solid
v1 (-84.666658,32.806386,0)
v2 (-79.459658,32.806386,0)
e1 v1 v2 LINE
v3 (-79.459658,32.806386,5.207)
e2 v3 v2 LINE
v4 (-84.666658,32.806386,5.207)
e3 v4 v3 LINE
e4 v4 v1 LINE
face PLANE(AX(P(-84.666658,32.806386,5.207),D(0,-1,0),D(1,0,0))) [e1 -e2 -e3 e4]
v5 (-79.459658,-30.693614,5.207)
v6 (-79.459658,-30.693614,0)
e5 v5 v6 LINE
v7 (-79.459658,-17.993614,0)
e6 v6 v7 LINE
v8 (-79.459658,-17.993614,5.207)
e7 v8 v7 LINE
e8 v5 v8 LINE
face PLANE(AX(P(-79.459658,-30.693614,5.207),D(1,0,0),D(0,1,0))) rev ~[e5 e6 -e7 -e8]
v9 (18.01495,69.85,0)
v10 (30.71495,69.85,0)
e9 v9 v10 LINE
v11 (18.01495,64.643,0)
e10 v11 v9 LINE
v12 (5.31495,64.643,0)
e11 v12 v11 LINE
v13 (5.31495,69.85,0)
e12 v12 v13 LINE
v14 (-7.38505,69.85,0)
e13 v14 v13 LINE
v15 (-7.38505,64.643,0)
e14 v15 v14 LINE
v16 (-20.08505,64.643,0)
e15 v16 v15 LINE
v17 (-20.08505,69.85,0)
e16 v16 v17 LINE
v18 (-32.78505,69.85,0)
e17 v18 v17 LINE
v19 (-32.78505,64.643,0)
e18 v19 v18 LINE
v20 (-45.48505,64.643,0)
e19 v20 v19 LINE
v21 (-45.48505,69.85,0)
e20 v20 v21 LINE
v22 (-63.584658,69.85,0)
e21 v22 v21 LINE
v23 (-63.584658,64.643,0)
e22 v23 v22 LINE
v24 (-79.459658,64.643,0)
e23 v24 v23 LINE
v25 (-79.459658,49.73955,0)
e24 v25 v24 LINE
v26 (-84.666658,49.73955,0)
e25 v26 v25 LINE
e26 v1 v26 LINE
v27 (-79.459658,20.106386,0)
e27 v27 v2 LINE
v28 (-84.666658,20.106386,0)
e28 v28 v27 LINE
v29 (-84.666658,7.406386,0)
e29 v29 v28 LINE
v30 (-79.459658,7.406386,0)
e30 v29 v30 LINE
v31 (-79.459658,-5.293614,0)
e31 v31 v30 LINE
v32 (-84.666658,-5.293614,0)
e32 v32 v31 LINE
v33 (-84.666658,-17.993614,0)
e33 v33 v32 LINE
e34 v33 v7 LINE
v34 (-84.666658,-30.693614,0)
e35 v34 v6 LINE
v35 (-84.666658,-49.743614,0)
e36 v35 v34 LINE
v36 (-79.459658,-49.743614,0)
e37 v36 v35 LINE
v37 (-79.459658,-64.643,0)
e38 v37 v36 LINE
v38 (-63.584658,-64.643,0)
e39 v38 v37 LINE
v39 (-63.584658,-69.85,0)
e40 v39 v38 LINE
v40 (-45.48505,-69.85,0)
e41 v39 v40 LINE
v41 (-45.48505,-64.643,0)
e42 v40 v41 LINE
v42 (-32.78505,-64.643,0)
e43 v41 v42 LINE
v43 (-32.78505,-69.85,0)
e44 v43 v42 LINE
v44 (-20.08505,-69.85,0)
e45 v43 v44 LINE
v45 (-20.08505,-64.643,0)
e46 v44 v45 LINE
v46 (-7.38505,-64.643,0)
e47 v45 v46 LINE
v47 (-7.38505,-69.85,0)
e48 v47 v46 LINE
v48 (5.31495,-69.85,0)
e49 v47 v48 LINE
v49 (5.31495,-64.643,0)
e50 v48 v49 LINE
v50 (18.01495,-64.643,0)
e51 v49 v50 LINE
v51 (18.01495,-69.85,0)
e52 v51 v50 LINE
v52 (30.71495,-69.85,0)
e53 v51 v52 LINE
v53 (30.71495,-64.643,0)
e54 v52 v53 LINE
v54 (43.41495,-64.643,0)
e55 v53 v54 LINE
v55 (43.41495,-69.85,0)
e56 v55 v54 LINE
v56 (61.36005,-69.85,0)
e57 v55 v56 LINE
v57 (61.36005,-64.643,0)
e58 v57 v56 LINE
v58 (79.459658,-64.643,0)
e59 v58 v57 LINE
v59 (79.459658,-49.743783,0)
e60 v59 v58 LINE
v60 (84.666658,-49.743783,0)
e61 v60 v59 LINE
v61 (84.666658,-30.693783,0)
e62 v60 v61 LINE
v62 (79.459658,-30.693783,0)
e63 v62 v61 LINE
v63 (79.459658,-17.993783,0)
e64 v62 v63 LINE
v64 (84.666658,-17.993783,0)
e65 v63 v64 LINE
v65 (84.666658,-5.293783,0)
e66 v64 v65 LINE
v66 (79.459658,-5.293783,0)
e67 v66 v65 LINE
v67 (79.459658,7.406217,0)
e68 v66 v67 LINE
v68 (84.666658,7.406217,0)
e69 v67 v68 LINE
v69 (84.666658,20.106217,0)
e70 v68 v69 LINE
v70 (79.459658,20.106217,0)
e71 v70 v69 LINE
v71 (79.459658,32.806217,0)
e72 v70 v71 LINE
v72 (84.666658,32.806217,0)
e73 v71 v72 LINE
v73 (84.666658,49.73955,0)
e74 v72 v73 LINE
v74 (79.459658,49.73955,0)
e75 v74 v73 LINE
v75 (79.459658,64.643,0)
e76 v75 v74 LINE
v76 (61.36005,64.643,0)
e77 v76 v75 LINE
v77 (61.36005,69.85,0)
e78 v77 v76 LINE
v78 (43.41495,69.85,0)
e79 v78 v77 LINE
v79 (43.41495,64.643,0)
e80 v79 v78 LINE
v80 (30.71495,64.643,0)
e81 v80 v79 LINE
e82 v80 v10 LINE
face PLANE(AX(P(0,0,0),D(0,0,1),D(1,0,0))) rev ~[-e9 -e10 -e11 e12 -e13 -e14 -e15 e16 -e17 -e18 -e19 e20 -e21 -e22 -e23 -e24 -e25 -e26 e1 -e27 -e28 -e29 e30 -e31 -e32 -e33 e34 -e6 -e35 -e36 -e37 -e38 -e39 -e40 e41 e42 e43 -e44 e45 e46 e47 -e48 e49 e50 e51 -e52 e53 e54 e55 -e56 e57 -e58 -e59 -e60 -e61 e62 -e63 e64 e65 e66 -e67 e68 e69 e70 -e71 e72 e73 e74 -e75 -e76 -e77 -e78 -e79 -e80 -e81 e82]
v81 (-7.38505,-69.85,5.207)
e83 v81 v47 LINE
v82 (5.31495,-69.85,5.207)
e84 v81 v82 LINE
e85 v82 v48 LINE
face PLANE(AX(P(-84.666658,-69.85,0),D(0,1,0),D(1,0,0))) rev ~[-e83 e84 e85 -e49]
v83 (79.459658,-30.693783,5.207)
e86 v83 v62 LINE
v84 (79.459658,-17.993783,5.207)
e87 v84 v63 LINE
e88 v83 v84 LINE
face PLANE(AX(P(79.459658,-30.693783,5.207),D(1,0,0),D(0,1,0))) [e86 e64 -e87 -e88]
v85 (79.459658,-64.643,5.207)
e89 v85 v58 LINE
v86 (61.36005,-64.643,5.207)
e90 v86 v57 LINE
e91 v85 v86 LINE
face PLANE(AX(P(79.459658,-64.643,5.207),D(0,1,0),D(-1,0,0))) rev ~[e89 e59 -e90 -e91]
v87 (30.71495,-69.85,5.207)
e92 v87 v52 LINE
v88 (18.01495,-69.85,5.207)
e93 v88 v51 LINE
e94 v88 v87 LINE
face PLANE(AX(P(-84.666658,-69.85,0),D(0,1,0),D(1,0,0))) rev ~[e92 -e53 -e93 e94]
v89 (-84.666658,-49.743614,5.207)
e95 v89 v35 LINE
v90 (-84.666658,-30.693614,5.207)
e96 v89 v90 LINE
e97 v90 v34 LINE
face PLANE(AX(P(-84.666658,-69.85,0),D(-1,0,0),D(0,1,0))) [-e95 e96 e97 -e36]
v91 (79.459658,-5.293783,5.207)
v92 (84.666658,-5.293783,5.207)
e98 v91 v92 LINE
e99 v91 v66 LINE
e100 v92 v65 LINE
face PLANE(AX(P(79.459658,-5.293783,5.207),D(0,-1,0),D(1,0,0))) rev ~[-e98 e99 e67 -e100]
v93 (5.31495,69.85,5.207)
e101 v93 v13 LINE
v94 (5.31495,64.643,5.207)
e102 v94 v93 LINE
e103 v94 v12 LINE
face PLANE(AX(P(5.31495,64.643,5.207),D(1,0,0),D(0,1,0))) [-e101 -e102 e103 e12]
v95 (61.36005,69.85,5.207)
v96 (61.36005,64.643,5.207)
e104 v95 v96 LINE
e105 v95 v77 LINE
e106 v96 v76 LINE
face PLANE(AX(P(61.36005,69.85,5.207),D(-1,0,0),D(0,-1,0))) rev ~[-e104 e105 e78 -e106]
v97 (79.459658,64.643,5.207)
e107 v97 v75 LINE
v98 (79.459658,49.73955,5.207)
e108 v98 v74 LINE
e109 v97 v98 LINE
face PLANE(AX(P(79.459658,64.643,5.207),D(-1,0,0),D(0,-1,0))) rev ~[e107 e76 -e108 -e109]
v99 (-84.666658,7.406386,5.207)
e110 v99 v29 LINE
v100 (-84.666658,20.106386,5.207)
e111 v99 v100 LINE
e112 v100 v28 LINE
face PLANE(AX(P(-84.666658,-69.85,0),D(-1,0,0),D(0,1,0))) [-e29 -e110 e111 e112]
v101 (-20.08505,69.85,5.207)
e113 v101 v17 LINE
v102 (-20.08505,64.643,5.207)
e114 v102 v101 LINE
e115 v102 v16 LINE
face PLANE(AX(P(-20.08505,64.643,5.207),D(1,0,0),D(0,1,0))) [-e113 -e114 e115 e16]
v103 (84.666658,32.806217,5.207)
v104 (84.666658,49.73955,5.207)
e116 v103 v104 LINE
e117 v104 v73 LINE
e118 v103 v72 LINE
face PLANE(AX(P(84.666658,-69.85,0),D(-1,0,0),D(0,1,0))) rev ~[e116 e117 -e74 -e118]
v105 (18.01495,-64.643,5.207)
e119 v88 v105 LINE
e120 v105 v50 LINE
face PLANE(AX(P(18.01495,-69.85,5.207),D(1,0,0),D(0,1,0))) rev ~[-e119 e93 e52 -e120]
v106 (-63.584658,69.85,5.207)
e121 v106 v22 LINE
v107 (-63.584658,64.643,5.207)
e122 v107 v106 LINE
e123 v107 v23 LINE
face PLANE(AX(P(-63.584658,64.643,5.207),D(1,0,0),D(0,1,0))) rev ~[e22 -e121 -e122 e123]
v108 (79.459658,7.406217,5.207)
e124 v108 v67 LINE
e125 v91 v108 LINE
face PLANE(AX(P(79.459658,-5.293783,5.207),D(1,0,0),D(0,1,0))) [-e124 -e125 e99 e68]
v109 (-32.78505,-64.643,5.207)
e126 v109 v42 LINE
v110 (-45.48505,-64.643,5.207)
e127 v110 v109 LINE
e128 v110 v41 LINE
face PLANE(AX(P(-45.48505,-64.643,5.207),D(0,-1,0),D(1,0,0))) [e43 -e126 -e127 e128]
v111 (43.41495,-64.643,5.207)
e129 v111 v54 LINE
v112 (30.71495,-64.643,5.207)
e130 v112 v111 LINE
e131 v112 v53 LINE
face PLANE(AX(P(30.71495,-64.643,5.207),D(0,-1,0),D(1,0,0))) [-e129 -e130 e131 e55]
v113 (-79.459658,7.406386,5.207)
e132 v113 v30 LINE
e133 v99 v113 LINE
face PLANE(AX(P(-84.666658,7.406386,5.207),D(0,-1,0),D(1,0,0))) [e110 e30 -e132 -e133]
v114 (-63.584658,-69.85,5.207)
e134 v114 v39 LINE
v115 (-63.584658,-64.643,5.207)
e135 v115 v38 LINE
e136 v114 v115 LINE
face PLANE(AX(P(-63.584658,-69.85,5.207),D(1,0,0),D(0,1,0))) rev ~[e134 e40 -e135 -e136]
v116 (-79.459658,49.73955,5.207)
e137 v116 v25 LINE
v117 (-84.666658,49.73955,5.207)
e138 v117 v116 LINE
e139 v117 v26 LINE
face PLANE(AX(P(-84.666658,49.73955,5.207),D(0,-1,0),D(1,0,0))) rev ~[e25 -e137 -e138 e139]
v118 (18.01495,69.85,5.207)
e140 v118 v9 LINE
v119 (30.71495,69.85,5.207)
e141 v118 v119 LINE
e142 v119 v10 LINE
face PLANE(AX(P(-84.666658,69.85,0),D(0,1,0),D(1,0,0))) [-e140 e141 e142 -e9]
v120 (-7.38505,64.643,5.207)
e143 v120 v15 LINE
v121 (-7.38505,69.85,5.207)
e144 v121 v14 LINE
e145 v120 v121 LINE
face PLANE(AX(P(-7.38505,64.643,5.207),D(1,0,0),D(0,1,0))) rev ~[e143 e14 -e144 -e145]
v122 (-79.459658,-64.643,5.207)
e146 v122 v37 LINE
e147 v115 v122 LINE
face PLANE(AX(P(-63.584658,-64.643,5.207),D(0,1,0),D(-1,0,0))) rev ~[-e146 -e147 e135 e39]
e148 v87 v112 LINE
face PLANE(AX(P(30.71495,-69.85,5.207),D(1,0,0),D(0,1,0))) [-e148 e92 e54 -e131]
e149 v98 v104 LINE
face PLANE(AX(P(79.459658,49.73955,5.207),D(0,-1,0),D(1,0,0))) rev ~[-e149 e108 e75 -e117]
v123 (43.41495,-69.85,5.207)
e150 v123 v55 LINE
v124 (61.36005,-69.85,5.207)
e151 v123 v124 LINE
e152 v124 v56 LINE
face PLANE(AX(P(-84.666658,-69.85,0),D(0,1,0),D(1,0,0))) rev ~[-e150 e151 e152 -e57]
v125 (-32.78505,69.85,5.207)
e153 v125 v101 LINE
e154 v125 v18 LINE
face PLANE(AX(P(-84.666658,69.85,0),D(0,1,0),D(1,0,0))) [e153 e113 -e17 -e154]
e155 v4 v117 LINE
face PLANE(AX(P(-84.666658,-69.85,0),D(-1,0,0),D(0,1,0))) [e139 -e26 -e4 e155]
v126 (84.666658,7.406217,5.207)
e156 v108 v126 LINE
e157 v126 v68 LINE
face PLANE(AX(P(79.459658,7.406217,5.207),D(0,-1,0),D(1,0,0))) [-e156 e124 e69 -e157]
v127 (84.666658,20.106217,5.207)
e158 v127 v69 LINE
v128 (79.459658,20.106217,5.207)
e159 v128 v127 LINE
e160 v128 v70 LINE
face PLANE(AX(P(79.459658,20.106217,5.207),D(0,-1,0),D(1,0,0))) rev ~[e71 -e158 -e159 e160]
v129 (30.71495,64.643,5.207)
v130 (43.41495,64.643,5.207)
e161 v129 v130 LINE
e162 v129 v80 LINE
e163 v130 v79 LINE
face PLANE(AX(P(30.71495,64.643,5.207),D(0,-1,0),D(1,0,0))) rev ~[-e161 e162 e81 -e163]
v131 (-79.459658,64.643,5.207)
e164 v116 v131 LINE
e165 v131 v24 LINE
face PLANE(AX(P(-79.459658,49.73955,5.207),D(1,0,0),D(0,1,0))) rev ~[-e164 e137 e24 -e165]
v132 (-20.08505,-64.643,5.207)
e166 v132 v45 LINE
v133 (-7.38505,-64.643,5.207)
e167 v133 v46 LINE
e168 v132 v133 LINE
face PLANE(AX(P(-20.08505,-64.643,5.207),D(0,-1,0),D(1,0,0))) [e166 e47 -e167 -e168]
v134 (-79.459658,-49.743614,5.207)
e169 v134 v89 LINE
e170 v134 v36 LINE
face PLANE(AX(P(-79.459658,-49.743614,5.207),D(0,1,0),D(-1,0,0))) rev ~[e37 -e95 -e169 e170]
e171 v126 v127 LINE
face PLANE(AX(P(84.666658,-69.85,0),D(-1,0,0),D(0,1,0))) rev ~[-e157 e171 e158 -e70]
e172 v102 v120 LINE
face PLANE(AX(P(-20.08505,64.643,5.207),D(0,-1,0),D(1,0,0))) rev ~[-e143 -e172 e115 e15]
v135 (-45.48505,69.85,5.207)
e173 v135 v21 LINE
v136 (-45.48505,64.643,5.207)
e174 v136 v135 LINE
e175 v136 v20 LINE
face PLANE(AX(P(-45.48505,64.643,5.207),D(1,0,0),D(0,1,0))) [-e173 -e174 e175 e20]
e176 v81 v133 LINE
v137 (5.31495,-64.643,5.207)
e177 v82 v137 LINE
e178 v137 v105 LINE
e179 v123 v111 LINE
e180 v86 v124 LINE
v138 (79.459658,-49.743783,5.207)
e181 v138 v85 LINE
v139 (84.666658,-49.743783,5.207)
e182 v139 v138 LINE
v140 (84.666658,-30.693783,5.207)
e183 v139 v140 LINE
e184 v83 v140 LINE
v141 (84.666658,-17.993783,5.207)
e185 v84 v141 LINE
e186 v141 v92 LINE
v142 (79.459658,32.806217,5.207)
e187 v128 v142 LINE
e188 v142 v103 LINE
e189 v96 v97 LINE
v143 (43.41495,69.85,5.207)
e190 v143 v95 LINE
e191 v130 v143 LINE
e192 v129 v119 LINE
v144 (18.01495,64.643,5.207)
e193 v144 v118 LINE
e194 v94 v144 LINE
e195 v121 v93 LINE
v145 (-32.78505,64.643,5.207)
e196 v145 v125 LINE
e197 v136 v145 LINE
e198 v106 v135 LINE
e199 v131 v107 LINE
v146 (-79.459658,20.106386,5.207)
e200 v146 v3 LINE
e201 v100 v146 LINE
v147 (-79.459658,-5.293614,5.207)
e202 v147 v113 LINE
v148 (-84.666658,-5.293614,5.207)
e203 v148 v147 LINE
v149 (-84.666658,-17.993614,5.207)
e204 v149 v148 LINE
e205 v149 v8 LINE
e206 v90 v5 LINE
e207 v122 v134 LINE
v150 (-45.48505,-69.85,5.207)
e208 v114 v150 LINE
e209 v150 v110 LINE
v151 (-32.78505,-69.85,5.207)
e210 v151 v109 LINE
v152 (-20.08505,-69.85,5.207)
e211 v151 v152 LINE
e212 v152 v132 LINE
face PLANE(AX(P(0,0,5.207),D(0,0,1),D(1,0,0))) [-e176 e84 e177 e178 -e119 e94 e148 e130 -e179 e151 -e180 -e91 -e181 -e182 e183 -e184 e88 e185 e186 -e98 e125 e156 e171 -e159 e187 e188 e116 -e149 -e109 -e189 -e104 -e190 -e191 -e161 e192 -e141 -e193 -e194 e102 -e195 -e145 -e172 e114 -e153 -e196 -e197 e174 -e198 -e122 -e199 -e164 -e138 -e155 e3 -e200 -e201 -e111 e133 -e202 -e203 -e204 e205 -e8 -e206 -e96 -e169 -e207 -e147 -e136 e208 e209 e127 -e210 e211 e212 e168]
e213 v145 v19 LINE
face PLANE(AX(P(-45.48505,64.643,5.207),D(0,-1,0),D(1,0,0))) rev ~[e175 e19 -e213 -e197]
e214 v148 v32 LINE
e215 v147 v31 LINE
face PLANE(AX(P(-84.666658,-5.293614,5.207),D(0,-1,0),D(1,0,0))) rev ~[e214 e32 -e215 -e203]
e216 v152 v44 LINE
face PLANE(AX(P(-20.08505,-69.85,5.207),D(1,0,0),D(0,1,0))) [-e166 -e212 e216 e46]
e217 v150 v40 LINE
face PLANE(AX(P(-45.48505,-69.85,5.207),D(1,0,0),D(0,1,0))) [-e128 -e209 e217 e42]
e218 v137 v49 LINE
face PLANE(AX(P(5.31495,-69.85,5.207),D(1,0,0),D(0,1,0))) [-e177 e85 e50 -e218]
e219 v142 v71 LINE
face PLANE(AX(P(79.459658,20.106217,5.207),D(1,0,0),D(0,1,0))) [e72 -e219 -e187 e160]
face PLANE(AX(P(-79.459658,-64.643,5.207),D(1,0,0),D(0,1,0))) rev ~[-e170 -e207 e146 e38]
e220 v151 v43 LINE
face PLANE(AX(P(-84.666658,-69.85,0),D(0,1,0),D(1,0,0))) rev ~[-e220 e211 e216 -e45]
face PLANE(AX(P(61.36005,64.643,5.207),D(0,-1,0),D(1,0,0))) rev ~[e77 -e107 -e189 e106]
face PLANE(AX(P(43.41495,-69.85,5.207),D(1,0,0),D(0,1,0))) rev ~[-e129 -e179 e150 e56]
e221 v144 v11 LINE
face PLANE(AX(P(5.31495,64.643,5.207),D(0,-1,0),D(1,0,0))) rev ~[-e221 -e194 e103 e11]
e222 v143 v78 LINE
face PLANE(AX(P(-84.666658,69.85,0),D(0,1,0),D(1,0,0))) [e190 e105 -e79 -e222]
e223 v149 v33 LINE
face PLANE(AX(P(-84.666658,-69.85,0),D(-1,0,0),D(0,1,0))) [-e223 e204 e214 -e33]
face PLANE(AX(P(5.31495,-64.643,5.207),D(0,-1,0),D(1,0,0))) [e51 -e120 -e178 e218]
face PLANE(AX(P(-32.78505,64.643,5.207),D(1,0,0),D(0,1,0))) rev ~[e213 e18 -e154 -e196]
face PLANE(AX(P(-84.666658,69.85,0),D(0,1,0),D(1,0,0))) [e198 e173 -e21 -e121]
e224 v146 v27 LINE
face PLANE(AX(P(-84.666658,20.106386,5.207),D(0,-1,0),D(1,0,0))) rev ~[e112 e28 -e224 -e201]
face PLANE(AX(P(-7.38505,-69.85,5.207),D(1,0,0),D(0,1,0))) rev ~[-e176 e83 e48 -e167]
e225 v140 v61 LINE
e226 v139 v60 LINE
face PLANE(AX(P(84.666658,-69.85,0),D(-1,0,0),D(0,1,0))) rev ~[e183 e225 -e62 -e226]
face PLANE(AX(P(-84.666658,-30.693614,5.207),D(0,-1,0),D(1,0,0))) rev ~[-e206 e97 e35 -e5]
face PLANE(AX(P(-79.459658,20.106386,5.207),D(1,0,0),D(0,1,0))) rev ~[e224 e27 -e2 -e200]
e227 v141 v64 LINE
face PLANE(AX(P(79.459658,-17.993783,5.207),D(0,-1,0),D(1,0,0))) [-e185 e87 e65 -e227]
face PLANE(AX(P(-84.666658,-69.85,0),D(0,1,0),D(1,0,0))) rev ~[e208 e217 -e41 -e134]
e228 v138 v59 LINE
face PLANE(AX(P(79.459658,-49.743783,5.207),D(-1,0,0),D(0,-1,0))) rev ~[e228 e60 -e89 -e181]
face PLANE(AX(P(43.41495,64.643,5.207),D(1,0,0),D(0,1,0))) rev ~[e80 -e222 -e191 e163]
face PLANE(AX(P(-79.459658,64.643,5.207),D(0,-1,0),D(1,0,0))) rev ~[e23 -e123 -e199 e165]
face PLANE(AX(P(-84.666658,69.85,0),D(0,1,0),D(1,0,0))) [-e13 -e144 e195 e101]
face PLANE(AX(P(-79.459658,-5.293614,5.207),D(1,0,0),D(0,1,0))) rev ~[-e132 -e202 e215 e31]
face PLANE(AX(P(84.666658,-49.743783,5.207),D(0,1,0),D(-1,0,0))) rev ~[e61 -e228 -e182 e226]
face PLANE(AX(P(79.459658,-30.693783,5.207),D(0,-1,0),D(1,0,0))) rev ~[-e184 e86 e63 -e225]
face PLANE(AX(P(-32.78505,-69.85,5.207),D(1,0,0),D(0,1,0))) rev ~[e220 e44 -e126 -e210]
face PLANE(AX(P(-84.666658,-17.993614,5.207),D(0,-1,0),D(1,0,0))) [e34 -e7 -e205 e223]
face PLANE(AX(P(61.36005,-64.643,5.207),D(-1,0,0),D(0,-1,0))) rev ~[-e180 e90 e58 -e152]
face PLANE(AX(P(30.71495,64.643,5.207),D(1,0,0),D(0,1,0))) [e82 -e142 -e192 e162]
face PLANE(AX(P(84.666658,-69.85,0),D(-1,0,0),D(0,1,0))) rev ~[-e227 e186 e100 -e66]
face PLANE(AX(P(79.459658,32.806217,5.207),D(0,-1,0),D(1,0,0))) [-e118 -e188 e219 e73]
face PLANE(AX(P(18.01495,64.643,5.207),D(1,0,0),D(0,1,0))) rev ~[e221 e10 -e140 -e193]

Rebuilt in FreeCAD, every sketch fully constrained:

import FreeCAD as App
import Part
import Sketcher
from FreeCAD import Vector
Q = App.Units.Quantity

doc = App.newDocument("Part")
body = doc.addObject("PartDesign::Body", "Body")

# Sketch on XY plane
sketch1 = doc.addObject("Sketcher::SketchObject", "Sketch")
body.addObject(sketch1)
sketch1.AttachmentSupport = (doc.XY_Plane, [""])
sketch1.MapMode = "FlatFace"
sketch1.addGeometry(Part.LineSegment(Vector(-84.666658, 69.85, 0), Vector(-84.666658, -69.85, 0)), False)
sketch1.addGeometry(Part.LineSegment(Vector(-84.666658, -69.85, 0), Vector(84.666658, -69.85, 0)), False)
sketch1.addGeometry(Part.LineSegment(Vector(84.666658, -69.85, 0), Vector(84.666658, 69.85, 0)), False)
sketch1.addGeometry(Part.LineSegment(Vector(84.666658, 69.85, 0), Vector(-84.666658, 69.85, 0)), False)
sketch1.addConstraint(Sketcher.Constraint("Coincident", 0, 2, 1, 1))
sketch1.addConstraint(Sketcher.Constraint("Coincident", 1, 2, 2, 1))
sketch1.addConstraint(Sketcher.Constraint("Coincident", 2, 2, 3, 1))
sketch1.addConstraint(Sketcher.Constraint("Coincident", 3, 2, 0, 1))
sketch1.addConstraint(Sketcher.Constraint("Vertical", 0))
sketch1.addConstraint(Sketcher.Constraint("Horizontal", 1))
sketch1.addConstraint(Sketcher.Constraint("Vertical", 2))
sketch1.addConstraint(Sketcher.Constraint("Horizontal", 3))
sketch1.addConstraint(Sketcher.Constraint("Symmetric", 0, 2, 2, 2, -1, 1))
sketch1.addConstraint(Sketcher.Constraint("DistanceY", 0, 2, 0, 1, Q("5.5 in")))
sketch1.addConstraint(Sketcher.Constraint("DistanceX", 1, 1, 1, 2, 169.333316))
pad1 = doc.addObject("PartDesign::Pad", "Pad")
body.addObject(pad1)
pad1.Profile = sketch1
pad1.Length = Q("0.205 in")

# Sketch on XY plane
sketch2 = doc.addObject("Sketcher::SketchObject", "Sketch001")
body.addObject(sketch2)
sketch2.AttachmentSupport = (doc.XY_Plane, [""])
sketch2.MapMode = "FlatFace"
sketch2.AttachmentOffset = App.Placement(Vector(0, 0, 0.205 * 25.4), App.Rotation())
sketch2.addGeometry(Part.LineSegment(Vector(-79.459658, 49.73955, 0), Vector(-79.459658, 64.643, 0)), False)
sketch2.addGeometry(Part.LineSegment(Vector(-79.459658, 64.643, 0), Vector(-63.584658, 64.643, 0)), False)
sketch2.addGeometry(Part.LineSegment(Vector(-63.584658, 64.643, 0), Vector(-63.584658, 69.85, 0)), False)
sketch2.addGeometry(Part.LineSegment(Vector(-63.584658, 69.85, 0), Vector(-84.666658, 69.85, 0)), False)
sketch2.addGeometry(Part.LineSegment(Vector(-84.666658, 69.85, 0), Vector(-84.666658, 49.73955, 0)), False)
sketch2.addGeometry(Part.LineSegment(Vector(-84.666658, 49.73955, 0), Vector(-79.459658, 49.73955, 0)), False)
sketch2.addGeometry(Part.LineSegment(Vector(-84.666658, 32.806386, 0), Vector(-84.666658, 20.106386, 0)), False)
sketch2.addGeometry(Part.LineSegment(Vector(-84.666658, 20.106386, 0), Vector(-79.459658, 20.106386, 0)), False)
sketch2.addGeometry(Part.LineSegment(Vector(-79.459658, 20.106386, 0), Vector(-79.459658, 32.806386, 0)), False)
sketch2.addGeometry(Part.LineSegment(Vector(-79.459658, 32.806386, 0), Vector(-84.666658, 32.806386, 0)), False)
sketch2.addGeometry(Part.LineSegment(Vector(-84.666658, 7.406386, 0), Vector(-84.666658, -5.293614, 0)), False)
sketch2.addGeometry(Part.LineSegment(Vector(-84.666658, -5.293614, 0), Vector(-79.459658, -5.293614, 0)), False)
sketch2.addGeometry(Part.LineSegment(Vector(-79.459658, -5.293614, 0), Vector(-79.459658, 7.406386, 0)), False)
sketch2.addGeometry(Part.LineSegment(Vector(-79.459658, 7.406386, 0), Vector(-84.666658, 7.406386, 0)), False)
sketch2.addGeometry(Part.LineSegment(Vector(-84.666658, -17.993614, 0), Vector(-84.666658, -30.693614, 0)), False)
sketch2.addGeometry(Part.LineSegment(Vector(-84.666658, -30.693614, 0), Vector(-79.459658, -30.693614, 0)), False)
sketch2.addGeometry(Part.LineSegment(Vector(-79.459658, -30.693614, 0), Vector(-79.459658, -17.993614, 0)), False)
sketch2.addGeometry(Part.LineSegment(Vector(-79.459658, -17.993614, 0), Vector(-84.666658, -17.993614, 0)), False)
sketch2.addGeometry(Part.LineSegment(Vector(-79.459658, -49.743614, 0), Vector(-84.666658, -49.743614, 0)), False)
sketch2.addGeometry(Part.LineSegment(Vector(-84.666658, -49.743614, 0), Vector(-84.666658, -69.85, 0)), False)
sketch2.addGeometry(Part.LineSegment(Vector(-84.666658, -69.85, 0), Vector(-63.584658, -69.85, 0)), False)
sketch2.addGeometry(Part.LineSegment(Vector(-63.584658, -69.85, 0), Vector(-63.584658, -64.643, 0)), False)
sketch2.addGeometry(Part.LineSegment(Vector(-63.584658, -64.643, 0), Vector(-79.459658, -64.643, 0)), False)
sketch2.addGeometry(Part.LineSegment(Vector(-79.459658, -64.643, 0), Vector(-79.459658, -49.743614, 0)), False)
sketch2.addGeometry(Part.LineSegment(Vector(-45.48505, -64.643, 0), Vector(-45.48505, -69.85, 0)), False)
sketch2.addGeometry(Part.LineSegment(Vector(-45.48505, -69.85, 0), Vector(-32.78505, -69.85, 0)), False)
sketch2.addGeometry(Part.LineSegment(Vector(-32.78505, -69.85, 0), Vector(-32.78505, -64.643, 0)), False)
sketch2.addGeometry(Part.LineSegment(Vector(-32.78505, -64.643, 0), Vector(-45.48505, -64.643, 0)), False)
sketch2.addGeometry(Part.LineSegment(Vector(-20.08505, -64.643, 0), Vector(-20.08505, -69.85, 0)), False)
sketch2.addGeometry(Part.LineSegment(Vector(-20.08505, -69.85, 0), Vector(-7.38505, -69.85, 0)), False)
sketch2.addGeometry(Part.LineSegment(Vector(-7.38505, -69.85, 0), Vector(-7.38505, -64.643, 0)), False)
sketch2.addGeometry(Part.LineSegment(Vector(-7.38505, -64.643, 0), Vector(-20.08505, -64.643, 0)), False)
sketch2.addGeometry(Part.LineSegment(Vector(5.31495, -64.643, 0), Vector(5.31495, -69.85, 0)), False)
sketch2.addGeometry(Part.LineSegment(Vector(5.31495, -69.85, 0), Vector(18.01495, -69.85, 0)), False)
sketch2.addGeometry(Part.LineSegment(Vector(18.01495, -69.85, 0), Vector(18.01495, -64.643, 0)), False)
sketch2.addGeometry(Part.LineSegment(Vector(18.01495, -64.643, 0), Vector(5.31495, -64.643, 0)), False)
sketch2.addGeometry(Part.LineSegment(Vector(30.71495, -64.643, 0), Vector(30.71495, -69.85, 0)), False)
sketch2.addGeometry(Part.LineSegment(Vector(30.71495, -69.85, 0), Vector(43.41495, -69.85, 0)), False)
sketch2.addGeometry(Part.LineSegment(Vector(43.41495, -69.85, 0), Vector(43.41495, -64.643, 0)), False)
sketch2.addGeometry(Part.LineSegment(Vector(43.41495, -64.643, 0), Vector(30.71495, -64.643, 0)), False)
sketch2.addGeometry(Part.LineSegment(Vector(61.36005, -64.643, 0), Vector(61.36005, -69.85, 0)), False)
sketch2.addGeometry(Part.LineSegment(Vector(61.36005, -69.85, 0), Vector(84.666658, -69.85, 0)), False)
sketch2.addGeometry(Part.LineSegment(Vector(84.666658, -69.85, 0), Vector(84.666658, -49.743783, 0)), False)
sketch2.addGeometry(Part.LineSegment(Vector(84.666658, -49.743783, 0), Vector(79.459658, -49.743783, 0)), False)
sketch2.addGeometry(Part.LineSegment(Vector(79.459658, -49.743783, 0), Vector(79.459658, -64.643, 0)), False)
sketch2.addGeometry(Part.LineSegment(Vector(79.459658, -64.643, 0), Vector(61.36005, -64.643, 0)), False)
sketch2.addGeometry(Part.LineSegment(Vector(79.459658, -17.993783, 0), Vector(79.459658, -30.693783, 0)), False)
sketch2.addGeometry(Part.LineSegment(Vector(79.459658, -30.693783, 0), Vector(84.666658, -30.693783, 0)), False)
sketch2.addGeometry(Part.LineSegment(Vector(84.666658, -30.693783, 0), Vector(84.666658, -17.993783, 0)), False)
sketch2.addGeometry(Part.LineSegment(Vector(84.666658, -17.993783, 0), Vector(79.459658, -17.993783, 0)), False)
sketch2.addGeometry(Part.LineSegment(Vector(79.459658, 7.406217, 0), Vector(79.459658, -5.293783, 0)), False)
sketch2.addGeometry(Part.LineSegment(Vector(79.459658, -5.293783, 0), Vector(84.666658, -5.293783, 0)), False)
sketch2.addGeometry(Part.LineSegment(Vector(84.666658, -5.293783, 0), Vector(84.666658, 7.406217, 0)), False)
sketch2.addGeometry(Part.LineSegment(Vector(84.666658, 7.406217, 0), Vector(79.459658, 7.406217, 0)), False)
sketch2.addGeometry(Part.LineSegment(Vector(84.666658, 69.85, 0), Vector(61.36005, 69.85, 0)), False)
sketch2.addGeometry(Part.LineSegment(Vector(61.36005, 69.85, 0), Vector(61.36005, 64.643, 0)), False)
sketch2.addGeometry(Part.LineSegment(Vector(61.36005, 64.643, 0), Vector(79.459658, 64.643, 0)), False)
sketch2.addGeometry(Part.LineSegment(Vector(79.459658, 64.643, 0), Vector(79.459658, 49.73955, 0)), False)
sketch2.addGeometry(Part.LineSegment(Vector(79.459658, 49.73955, 0), Vector(84.666658, 49.73955, 0)), False)
sketch2.addGeometry(Part.LineSegment(Vector(84.666658, 49.73955, 0), Vector(84.666658, 69.85, 0)), False)
sketch2.addGeometry(Part.LineSegment(Vector(30.71495, 69.85, 0), Vector(30.71495, 64.643, 0)), False)
sketch2.addGeometry(Part.LineSegment(Vector(30.71495, 64.643, 0), Vector(43.41495, 64.643, 0)), False)
sketch2.addGeometry(Part.LineSegment(Vector(43.41495, 64.643, 0), Vector(43.41495, 69.85, 0)), False)
sketch2.addGeometry(Part.LineSegment(Vector(43.41495, 69.85, 0), Vector(30.71495, 69.85, 0)), False)
sketch2.addGeometry(Part.LineSegment(Vector(5.31495, 69.85, 0), Vector(5.31495, 64.643, 0)), False)
sketch2.addGeometry(Part.LineSegment(Vector(5.31495, 64.643, 0), Vector(18.01495, 64.643, 0)), False)
sketch2.addGeometry(Part.LineSegment(Vector(18.01495, 64.643, 0), Vector(18.01495, 69.85, 0)), False)
sketch2.addGeometry(Part.LineSegment(Vector(18.01495, 69.85, 0), Vector(5.31495, 69.85, 0)), False)
sketch2.addGeometry(Part.LineSegment(Vector(79.459658, 32.806217, 0), Vector(79.459658, 20.106217, 0)), False)
sketch2.addGeometry(Part.LineSegment(Vector(79.459658, 20.106217, 0), Vector(84.666658, 20.106217, 0)), False)
sketch2.addGeometry(Part.LineSegment(Vector(84.666658, 20.106217, 0), Vector(84.666658, 32.806217, 0)), False)
sketch2.addGeometry(Part.LineSegment(Vector(84.666658, 32.806217, 0), Vector(79.459658, 32.806217, 0)), False)
sketch2.addGeometry(Part.LineSegment(Vector(-20.08505, 69.85, 0), Vector(-20.08505, 64.643, 0)), False)
sketch2.addGeometry(Part.LineSegment(Vector(-20.08505, 64.643, 0), Vector(-7.38505, 64.643, 0)), False)
sketch2.addGeometry(Part.LineSegment(Vector(-7.38505, 64.643, 0), Vector(-7.38505, 69.85, 0)), False)
sketch2.addGeometry(Part.LineSegment(Vector(-7.38505, 69.85, 0), Vector(-20.08505, 69.85, 0)), False)
sketch2.addGeometry(Part.LineSegment(Vector(-45.48505, 69.85, 0), Vector(-45.48505, 64.643, 0)), False)
sketch2.addGeometry(Part.LineSegment(Vector(-45.48505, 64.643, 0), Vector(-32.78505, 64.643, 0)), False)
sketch2.addGeometry(Part.LineSegment(Vector(-32.78505, 64.643, 0), Vector(-32.78505, 69.85, 0)), False)
sketch2.addGeometry(Part.LineSegment(Vector(-32.78505, 69.85, 0), Vector(-45.48505, 69.85, 0)), False)
sketch2.addConstraint(Sketcher.Constraint("Coincident", 0, 2, 1, 1))
sketch2.addConstraint(Sketcher.Constraint("Coincident", 1, 2, 2, 1))
sketch2.addConstraint(Sketcher.Constraint("Coincident", 2, 2, 3, 1))
sketch2.addConstraint(Sketcher.Constraint("Coincident", 3, 2, 4, 1))
sketch2.addConstraint(Sketcher.Constraint("Coincident", 4, 2, 5, 1))
sketch2.addConstraint(Sketcher.Constraint("Coincident", 5, 2, 0, 1))
sketch2.addConstraint(Sketcher.Constraint("Coincident", 6, 2, 7, 1))
sketch2.addConstraint(Sketcher.Constraint("Coincident", 7, 2, 8, 1))
sketch2.addConstraint(Sketcher.Constraint("Coincident", 8, 2, 9, 1))
sketch2.addConstraint(Sketcher.Constraint("Coincident", 9, 2, 6, 1))
sketch2.addConstraint(Sketcher.Constraint("Coincident", 10, 2, 11, 1))
sketch2.addConstraint(Sketcher.Constraint("Coincident", 11, 2, 12, 1))
sketch2.addConstraint(Sketcher.Constraint("Coincident", 12, 2, 13, 1))
sketch2.addConstraint(Sketcher.Constraint("Coincident", 13, 2, 10, 1))
sketch2.addConstraint(Sketcher.Constraint("Coincident", 14, 2, 15, 1))
sketch2.addConstraint(Sketcher.Constraint("Coincident", 15, 2, 16, 1))
sketch2.addConstraint(Sketcher.Constraint("Coincident", 16, 2, 17, 1))
sketch2.addConstraint(Sketcher.Constraint("Coincident", 17, 2, 14, 1))
sketch2.addConstraint(Sketcher.Constraint("Coincident", 18, 2, 19, 1))
sketch2.addConstraint(Sketcher.Constraint("Coincident", 19, 2, 20, 1))
sketch2.addConstraint(Sketcher.Constraint("Coincident", 20, 2, 21, 1))
sketch2.addConstraint(Sketcher.Constraint("Coincident", 21, 2, 22, 1))
sketch2.addConstraint(Sketcher.Constraint("Coincident", 22, 2, 23, 1))
sketch2.addConstraint(Sketcher.Constraint("Coincident", 23, 2, 18, 1))
sketch2.addConstraint(Sketcher.Constraint("Coincident", 24, 2, 25, 1))
sketch2.addConstraint(Sketcher.Constraint("Coincident", 25, 2, 26, 1))
sketch2.addConstraint(Sketcher.Constraint("Coincident", 26, 2, 27, 1))
sketch2.addConstraint(Sketcher.Constraint("Coincident", 27, 2, 24, 1))
sketch2.addConstraint(Sketcher.Constraint("Coincident", 28, 2, 29, 1))
sketch2.addConstraint(Sketcher.Constraint("Coincident", 29, 2, 30, 1))
sketch2.addConstraint(Sketcher.Constraint("Coincident", 30, 2, 31, 1))
sketch2.addConstraint(Sketcher.Constraint("Coincident", 31, 2, 28, 1))
sketch2.addConstraint(Sketcher.Constraint("Coincident", 32, 2, 33, 1))
sketch2.addConstraint(Sketcher.Constraint("Coincident", 33, 2, 34, 1))
sketch2.addConstraint(Sketcher.Constraint("Coincident", 34, 2, 35, 1))
sketch2.addConstraint(Sketcher.Constraint("Coincident", 35, 2, 32, 1))
sketch2.addConstraint(Sketcher.Constraint("Coincident", 36, 2, 37, 1))
sketch2.addConstraint(Sketcher.Constraint("Coincident", 37, 2, 38, 1))
sketch2.addConstraint(Sketcher.Constraint("Coincident", 38, 2, 39, 1))
sketch2.addConstraint(Sketcher.Constraint("Coincident", 39, 2, 36, 1))
sketch2.addConstraint(Sketcher.Constraint("Coincident", 40, 2, 41, 1))
sketch2.addConstraint(Sketcher.Constraint("Coincident", 41, 2, 42, 1))
sketch2.addConstraint(Sketcher.Constraint("Coincident", 42, 2, 43, 1))
sketch2.addConstraint(Sketcher.Constraint("Coincident", 43, 2, 44, 1))
sketch2.addConstraint(Sketcher.Constraint("Coincident", 44, 2, 45, 1))
sketch2.addConstraint(Sketcher.Constraint("Coincident", 45, 2, 40, 1))
sketch2.addConstraint(Sketcher.Constraint("Coincident", 46, 2, 47, 1))
sketch2.addConstraint(Sketcher.Constraint("Coincident", 47, 2, 48, 1))
sketch2.addConstraint(Sketcher.Constraint("Coincident", 48, 2, 49, 1))
sketch2.addConstraint(Sketcher.Constraint("Coincident", 49, 2, 46, 1))
sketch2.addConstraint(Sketcher.Constraint("Coincident", 50, 2, 51, 1))
sketch2.addConstraint(Sketcher.Constraint("Coincident", 51, 2, 52, 1))
sketch2.addConstraint(Sketcher.Constraint("Coincident", 52, 2, 53, 1))
sketch2.addConstraint(Sketcher.Constraint("Coincident", 53, 2, 50, 1))
sketch2.addConstraint(Sketcher.Constraint("Coincident", 54, 2, 55, 1))
sketch2.addConstraint(Sketcher.Constraint("Coincident", 55, 2, 56, 1))
sketch2.addConstraint(Sketcher.Constraint("Coincident", 56, 2, 57, 1))
sketch2.addConstraint(Sketcher.Constraint("Coincident", 57, 2, 58, 1))
sketch2.addConstraint(Sketcher.Constraint("Coincident", 58, 2, 59, 1))
sketch2.addConstraint(Sketcher.Constraint("Coincident", 59, 2, 54, 1))
sketch2.addConstraint(Sketcher.Constraint("Coincident", 60, 2, 61, 1))
sketch2.addConstraint(Sketcher.Constraint("Coincident", 61, 2, 62, 1))
sketch2.addConstraint(Sketcher.Constraint("Coincident", 62, 2, 63, 1))
sketch2.addConstraint(Sketcher.Constraint("Coincident", 63, 2, 60, 1))
sketch2.addConstraint(Sketcher.Constraint("Coincident", 64, 2, 65, 1))
sketch2.addConstraint(Sketcher.Constraint("Coincident", 65, 2, 66, 1))
sketch2.addConstraint(Sketcher.Constraint("Coincident", 66, 2, 67, 1))
sketch2.addConstraint(Sketcher.Constraint("Coincident", 67, 2, 64, 1))
sketch2.addConstraint(Sketcher.Constraint("Coincident", 68, 2, 69, 1))
sketch2.addConstraint(Sketcher.Constraint("Coincident", 69, 2, 70, 1))
sketch2.addConstraint(Sketcher.Constraint("Coincident", 70, 2, 71, 1))
sketch2.addConstraint(Sketcher.Constraint("Coincident", 71, 2, 68, 1))
sketch2.addConstraint(Sketcher.Constraint("Coincident", 72, 2, 73, 1))
sketch2.addConstraint(Sketcher.Constraint("Coincident", 73, 2, 74, 1))
sketch2.addConstraint(Sketcher.Constraint("Coincident", 74, 2, 75, 1))
sketch2.addConstraint(Sketcher.Constraint("Coincident", 75, 2, 72, 1))
sketch2.addConstraint(Sketcher.Constraint("Coincident", 76, 2, 77, 1))
sketch2.addConstraint(Sketcher.Constraint("Coincident", 77, 2, 78, 1))
sketch2.addConstraint(Sketcher.Constraint("Coincident", 78, 2, 79, 1))
sketch2.addConstraint(Sketcher.Constraint("Coincident", 79, 2, 76, 1))
sketch2.addConstraint(Sketcher.Constraint("Vertical", 0))
sketch2.addConstraint(Sketcher.Constraint("Horizontal", 1))
sketch2.addConstraint(Sketcher.Constraint("Vertical", 2))
sketch2.addConstraint(Sketcher.Constraint("Horizontal", 3))
sketch2.addConstraint(Sketcher.Constraint("Vertical", 4))
sketch2.addConstraint(Sketcher.Constraint("Horizontal", 5))
sketch2.addConstraint(Sketcher.Constraint("Vertical", 6))
sketch2.addConstraint(Sketcher.Constraint("Horizontal", 7))
sketch2.addConstraint(Sketcher.Constraint("Vertical", 8))
sketch2.addConstraint(Sketcher.Constraint("Horizontal", 9))
sketch2.addConstraint(Sketcher.Constraint("Vertical", 10))
sketch2.addConstraint(Sketcher.Constraint("Horizontal", 11))
sketch2.addConstraint(Sketcher.Constraint("Vertical", 12))
sketch2.addConstraint(Sketcher.Constraint("Horizontal", 13))
sketch2.addConstraint(Sketcher.Constraint("Vertical", 14))
sketch2.addConstraint(Sketcher.Constraint("Horizontal", 15))
sketch2.addConstraint(Sketcher.Constraint("Vertical", 16))
sketch2.addConstraint(Sketcher.Constraint("Horizontal", 17))
sketch2.addConstraint(Sketcher.Constraint("Horizontal", 18))
sketch2.addConstraint(Sketcher.Constraint("Vertical", 19))
sketch2.addConstraint(Sketcher.Constraint("Horizontal", 20))
sketch2.addConstraint(Sketcher.Constraint("Vertical", 21))
sketch2.addConstraint(Sketcher.Constraint("Horizontal", 22))
sketch2.addConstraint(Sketcher.Constraint("Vertical", 23))
sketch2.addConstraint(Sketcher.Constraint("Vertical", 24))
sketch2.addConstraint(Sketcher.Constraint("Horizontal", 25))
sketch2.addConstraint(Sketcher.Constraint("Vertical", 26))
sketch2.addConstraint(Sketcher.Constraint("Horizontal", 27))
sketch2.addConstraint(Sketcher.Constraint("Vertical", 28))
sketch2.addConstraint(Sketcher.Constraint("Horizontal", 29))
sketch2.addConstraint(Sketcher.Constraint("Vertical", 30))
sketch2.addConstraint(Sketcher.Constraint("Horizontal", 31))
sketch2.addConstraint(Sketcher.Constraint("Vertical", 32))
sketch2.addConstraint(Sketcher.Constraint("Horizontal", 33))
sketch2.addConstraint(Sketcher.Constraint("Vertical", 34))
sketch2.addConstraint(Sketcher.Constraint("Horizontal", 35))
sketch2.addConstraint(Sketcher.Constraint("Vertical", 36))
sketch2.addConstraint(Sketcher.Constraint("Horizontal", 37))
sketch2.addConstraint(Sketcher.Constraint("Vertical", 38))
sketch2.addConstraint(Sketcher.Constraint("Horizontal", 39))
sketch2.addConstraint(Sketcher.Constraint("Vertical", 40))
sketch2.addConstraint(Sketcher.Constraint("Horizontal", 41))
sketch2.addConstraint(Sketcher.Constraint("Vertical", 42))
sketch2.addConstraint(Sketcher.Constraint("Horizontal", 43))
sketch2.addConstraint(Sketcher.Constraint("Vertical", 44))
sketch2.addConstraint(Sketcher.Constraint("Horizontal", 45))
sketch2.addConstraint(Sketcher.Constraint("Vertical", 46))
sketch2.addConstraint(Sketcher.Constraint("Horizontal", 47))
sketch2.addConstraint(Sketcher.Constraint("Vertical", 48))
sketch2.addConstraint(Sketcher.Constraint("Horizontal", 49))
sketch2.addConstraint(Sketcher.Constraint("Vertical", 50))
sketch2.addConstraint(Sketcher.Constraint("Horizontal", 51))
sketch2.addConstraint(Sketcher.Constraint("Vertical", 52))
sketch2.addConstraint(Sketcher.Constraint("Horizontal", 53))
sketch2.addConstraint(Sketcher.Constraint("Horizontal", 54))
sketch2.addConstraint(Sketcher.Constraint("Vertical", 55))
sketch2.addConstraint(Sketcher.Constraint("Horizontal", 56))
sketch2.addConstraint(Sketcher.Constraint("Vertical", 57))
sketch2.addConstraint(Sketcher.Constraint("Horizontal", 58))
sketch2.addConstraint(Sketcher.Constraint("Vertical", 59))
sketch2.addConstraint(Sketcher.Constraint("Vertical", 60))
sketch2.addConstraint(Sketcher.Constraint("Horizontal", 61))
sketch2.addConstraint(Sketcher.Constraint("Vertical", 62))
sketch2.addConstraint(Sketcher.Constraint("Horizontal", 63))
sketch2.addConstraint(Sketcher.Constraint("Vertical", 64))
sketch2.addConstraint(Sketcher.Constraint("Horizontal", 65))
sketch2.addConstraint(Sketcher.Constraint("Vertical", 66))
sketch2.addConstraint(Sketcher.Constraint("Horizontal", 67))
sketch2.addConstraint(Sketcher.Constraint("Vertical", 68))
sketch2.addConstraint(Sketcher.Constraint("Horizontal", 69))
sketch2.addConstraint(Sketcher.Constraint("Vertical", 70))
sketch2.addConstraint(Sketcher.Constraint("Horizontal", 71))
sketch2.addConstraint(Sketcher.Constraint("Vertical", 72))
sketch2.addConstraint(Sketcher.Constraint("Horizontal", 73))
sketch2.addConstraint(Sketcher.Constraint("Vertical", 74))
sketch2.addConstraint(Sketcher.Constraint("Horizontal", 75))
sketch2.addConstraint(Sketcher.Constraint("Vertical", 76))
sketch2.addConstraint(Sketcher.Constraint("Horizontal", 77))
sketch2.addConstraint(Sketcher.Constraint("Vertical", 78))
sketch2.addConstraint(Sketcher.Constraint("Horizontal", 79))
sketch2.addConstraint(Sketcher.Constraint("Symmetric", 3, 2, 41, 2, -1, 1))
sketch2.addConstraint(Sketcher.Constraint("Symmetric", 0, 2, 44, 2, -1, 1))
sketch2.addConstraint(Sketcher.Constraint("Symmetric", 22, 2, 56, 2, -1, 1))
sketch2.addConstraint(Sketcher.Constraint("Symmetric", 19, 2, 59, 2, -1, 1))
sketch2.addConstraint(Sketcher.Constraint("Symmetric", 19, 2, 41, 2, -2))
sketch2.addConstraint(Sketcher.Constraint("Symmetric", 22, 2, 44, 2, -2))
sketch2.addConstraint(Sketcher.Constraint("Symmetric", 39, 2, 60, 2, -1))
sketch2.addConstraint(Sketcher.Constraint("Symmetric", 37, 2, 62, 2, -1))
sketch2.addConstraint(Sketcher.Constraint("Symmetric", 35, 2, 64, 2, -1))
sketch2.addConstraint(Sketcher.Constraint("Symmetric", 33, 2, 66, 2, -1))
sketch2.addConstraint(Sketcher.Constraint("Symmetric", 31, 2, 72, 2, -1))
sketch2.addConstraint(Sketcher.Constraint("Symmetric", 29, 2, 74, 2, -1))
sketch2.addConstraint(Sketcher.Constraint("Symmetric", 27, 2, 76, 2, -1))
sketch2.addConstraint(Sketcher.Constraint("Symmetric", 25, 2, 78, 2, -1))
sketch2.addConstraint(Sketcher.Constraint("Horizontal", 20, 2, 24, 2))
sketch2.addConstraint(Sketcher.Constraint("Horizontal", 22, 2, 26, 2))
sketch2.addConstraint(Sketcher.Constraint("Horizontal", 25, 2, 28, 2))
sketch2.addConstraint(Sketcher.Constraint("Horizontal", 27, 2, 30, 2))
sketch2.addConstraint(Sketcher.Constraint("Horizontal", 29, 2, 32, 2))
sketch2.addConstraint(Sketcher.Constraint("Horizontal", 31, 2, 34, 2))
sketch2.addConstraint(Sketcher.Constraint("Horizontal", 33, 2, 36, 2))
sketch2.addConstraint(Sketcher.Constraint("Horizontal", 35, 2, 38, 2))
sketch2.addConstraint(Sketcher.Constraint("Horizontal", 5, 2, 57, 2))
sketch2.addConstraint(Sketcher.Constraint("Vertical", 4, 2, 6, 2))
sketch2.addConstraint(Sketcher.Constraint("Vertical", 5, 2, 7, 2))
sketch2.addConstraint(Sketcher.Constraint("Vertical", 9, 2, 10, 2))
sketch2.addConstraint(Sketcher.Constraint("Vertical", 8, 2, 11, 2))
sketch2.addConstraint(Sketcher.Constraint("Vertical", 13, 2, 14, 2))
sketch2.addConstraint(Sketcher.Constraint("Vertical", 12, 2, 15, 2))
sketch2.addConstraint(Sketcher.Constraint("Vertical", 2, 2, 20, 2))
sketch2.addConstraint(Sketcher.Constraint("Vertical", 44, 2, 46, 2))
sketch2.addConstraint(Sketcher.Constraint("Vertical", 42, 2, 47, 2))
sketch2.addConstraint(Sketcher.Constraint("Vertical", 49, 2, 50, 2))
sketch2.addConstraint(Sketcher.Constraint("Vertical", 48, 2, 51, 2))
sketch2.addConstraint(Sketcher.Constraint("Vertical", 45, 2, 54, 2))
sketch2.addConstraint(Sketcher.Constraint("Vertical", 57, 2, 68, 2))
sketch2.addConstraint(Sketcher.Constraint("Vertical", 59, 2, 69, 2))
sketch2.addConstraint(Sketcher.Constraint("Equal", 27, 29))
sketch2.addConstraint(Sketcher.Constraint("Equal", 31, 33))
sketch2.addConstraint(Sketcher.Constraint("Equal", 35, 37))
sketch2.addConstraint(Sketcher.Constraint("Equal", 71, 2))
sketch2.addConstraint(Sketcher.Constraint("Equal", 79, 6))
sketch2.addConstraint(Sketcher.Constraint("Equal", 8, 10))
sketch2.addConstraint(Sketcher.Constraint("Equal", 12, 14))
sketch2.addConstraint(Sketcher.Constraint("Equal", 16, 46))
sketch2.addConstraint(Sketcher.Constraint("Equal", 48, 50))
sketch2.addConstraint(Sketcher.Constraint("Equal", 52, 68))
sketch2.addConstraint(Sketcher.Constraint("DistanceX", 25, 1, 25, 2, Q("0.5 in")))
sketch2.addConstraint(Sketcher.Constraint("DistanceX", 3, 2, 3, 1, Q("0.83 in")))
sketch2.addConstraint(Sketcher.Constraint("DistanceX", 1, 1, 1, 2, Q("0.625 in")))
sketch2.addConstraint(Sketcher.Constraint("DistanceY", -1, 1, 2, 2, Q("2.75 in")))
sketch2.addConstraint(Sketcher.Constraint("DistanceX", 45, 2, 45, 1, 18.099608))
sketch2.addConstraint(Sketcher.Constraint("DistanceY", 0, 1, 0, 2, 14.90345))
sketch2.addConstraint(Sketcher.Constraint("DistanceY", 19, 2, 19, 1, 20.106386))
sketch2.addConstraint(Sketcher.Constraint("DistanceY", 42, 1, 42, 2, 20.106217))
sketch2.addConstraint(Sketcher.Constraint("DistanceX", 0, 2, -1, 1, 79.459658))
sketch2.addConstraint(Sketcher.Constraint("DistanceX", 24, 2, -1, 1, 45.48505))
sketch2.addConstraint(Sketcher.Constraint("DistanceX", 28, 2, -1, 1, 20.08505))
sketch2.addConstraint(Sketcher.Constraint("DistanceX", -1, 1, 32, 2, 5.31495))
sketch2.addConstraint(Sketcher.Constraint("DistanceX", -1, 1, 36, 2, 30.71495))
sketch2.addConstraint(Sketcher.Constraint("DistanceY", -1, 1, 6, 2, 20.106386))
sketch2.addConstraint(Sketcher.Constraint("DistanceY", 10, 2, -1, 1, 5.293614))
sketch2.addConstraint(Sketcher.Constraint("DistanceY", 14, 2, -1, 1, 30.693614))
sketch2.addConstraint(Sketcher.Constraint("DistanceY", 46, 2, -1, 1, 30.693783))
sketch2.addConstraint(Sketcher.Constraint("DistanceY", 50, 2, -1, 1, 5.293783))
sketch2.addConstraint(Sketcher.Constraint("DistanceY", -1, 1, 68, 2, 20.106217))
pocket1 = doc.addObject("PartDesign::Pocket", "Pocket")
body.addObject(pocket1)
pocket1.Profile = sketch2
pocket1.Type = "ThroughAll"

doc.recompute()
